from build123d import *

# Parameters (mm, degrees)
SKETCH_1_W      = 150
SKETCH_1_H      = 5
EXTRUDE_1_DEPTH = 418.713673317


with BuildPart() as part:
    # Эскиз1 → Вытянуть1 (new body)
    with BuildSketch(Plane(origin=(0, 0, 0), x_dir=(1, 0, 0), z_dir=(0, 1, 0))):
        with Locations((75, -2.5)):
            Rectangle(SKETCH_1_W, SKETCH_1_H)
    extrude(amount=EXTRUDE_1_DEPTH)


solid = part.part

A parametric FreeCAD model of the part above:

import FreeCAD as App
import Part
import Sketcher


def add_polygon(sketch, points):
    """Adds a closed chain of lines whose ends are joined by coincident constraints."""
    first, n = sketch.GeometryCount, len(points)
    for a, b in zip(points, points[1:] + points[:1]):
        sketch.addGeometry(Part.LineSegment(App.Vector(*a, 0), App.Vector(*b, 0)), False)
    for i in range(n):
        sketch.addConstraint(Sketcher.Constraint("Coincident", first + i, 2, first + (i + 1) % n, 1))

doc = App.newDocument("Part")
body = doc.addObject("PartDesign::Body", "Body")

# Sketch on XZ plane
sketch1 = body.newObject("Sketcher::SketchObject", "Sketch")
sketch1.AttachmentSupport = (doc.getObject("XZ_Plane"), [""])
sketch1.MapMode = "FlatFace"
add_polygon(sketch1, [(0, 0), (0, 5), (150, 5), (150, 0)])  # lines 0-3
sketch1.addConstraint([
    Sketcher.Constraint("Vertical", 0),
    Sketcher.Constraint("Horizontal", 1),
    Sketcher.Constraint("Vertical", 2),
    Sketcher.Constraint("Horizontal", 3),
    Sketcher.Constraint("Coincident", 3, 2, -1, 1),
    Sketcher.Constraint("DistanceX", 1, 1, 1, 2, 150.0),
    Sketcher.Constraint("DistanceY", 0, 1, 0, 2, 5.0),
])
pad1 = body.newObject("PartDesign::Pad", "Pad")
pad1.Profile = sketch1
pad1.Length = 418.713673
pad1.Reversed = True

doc.recompute()
